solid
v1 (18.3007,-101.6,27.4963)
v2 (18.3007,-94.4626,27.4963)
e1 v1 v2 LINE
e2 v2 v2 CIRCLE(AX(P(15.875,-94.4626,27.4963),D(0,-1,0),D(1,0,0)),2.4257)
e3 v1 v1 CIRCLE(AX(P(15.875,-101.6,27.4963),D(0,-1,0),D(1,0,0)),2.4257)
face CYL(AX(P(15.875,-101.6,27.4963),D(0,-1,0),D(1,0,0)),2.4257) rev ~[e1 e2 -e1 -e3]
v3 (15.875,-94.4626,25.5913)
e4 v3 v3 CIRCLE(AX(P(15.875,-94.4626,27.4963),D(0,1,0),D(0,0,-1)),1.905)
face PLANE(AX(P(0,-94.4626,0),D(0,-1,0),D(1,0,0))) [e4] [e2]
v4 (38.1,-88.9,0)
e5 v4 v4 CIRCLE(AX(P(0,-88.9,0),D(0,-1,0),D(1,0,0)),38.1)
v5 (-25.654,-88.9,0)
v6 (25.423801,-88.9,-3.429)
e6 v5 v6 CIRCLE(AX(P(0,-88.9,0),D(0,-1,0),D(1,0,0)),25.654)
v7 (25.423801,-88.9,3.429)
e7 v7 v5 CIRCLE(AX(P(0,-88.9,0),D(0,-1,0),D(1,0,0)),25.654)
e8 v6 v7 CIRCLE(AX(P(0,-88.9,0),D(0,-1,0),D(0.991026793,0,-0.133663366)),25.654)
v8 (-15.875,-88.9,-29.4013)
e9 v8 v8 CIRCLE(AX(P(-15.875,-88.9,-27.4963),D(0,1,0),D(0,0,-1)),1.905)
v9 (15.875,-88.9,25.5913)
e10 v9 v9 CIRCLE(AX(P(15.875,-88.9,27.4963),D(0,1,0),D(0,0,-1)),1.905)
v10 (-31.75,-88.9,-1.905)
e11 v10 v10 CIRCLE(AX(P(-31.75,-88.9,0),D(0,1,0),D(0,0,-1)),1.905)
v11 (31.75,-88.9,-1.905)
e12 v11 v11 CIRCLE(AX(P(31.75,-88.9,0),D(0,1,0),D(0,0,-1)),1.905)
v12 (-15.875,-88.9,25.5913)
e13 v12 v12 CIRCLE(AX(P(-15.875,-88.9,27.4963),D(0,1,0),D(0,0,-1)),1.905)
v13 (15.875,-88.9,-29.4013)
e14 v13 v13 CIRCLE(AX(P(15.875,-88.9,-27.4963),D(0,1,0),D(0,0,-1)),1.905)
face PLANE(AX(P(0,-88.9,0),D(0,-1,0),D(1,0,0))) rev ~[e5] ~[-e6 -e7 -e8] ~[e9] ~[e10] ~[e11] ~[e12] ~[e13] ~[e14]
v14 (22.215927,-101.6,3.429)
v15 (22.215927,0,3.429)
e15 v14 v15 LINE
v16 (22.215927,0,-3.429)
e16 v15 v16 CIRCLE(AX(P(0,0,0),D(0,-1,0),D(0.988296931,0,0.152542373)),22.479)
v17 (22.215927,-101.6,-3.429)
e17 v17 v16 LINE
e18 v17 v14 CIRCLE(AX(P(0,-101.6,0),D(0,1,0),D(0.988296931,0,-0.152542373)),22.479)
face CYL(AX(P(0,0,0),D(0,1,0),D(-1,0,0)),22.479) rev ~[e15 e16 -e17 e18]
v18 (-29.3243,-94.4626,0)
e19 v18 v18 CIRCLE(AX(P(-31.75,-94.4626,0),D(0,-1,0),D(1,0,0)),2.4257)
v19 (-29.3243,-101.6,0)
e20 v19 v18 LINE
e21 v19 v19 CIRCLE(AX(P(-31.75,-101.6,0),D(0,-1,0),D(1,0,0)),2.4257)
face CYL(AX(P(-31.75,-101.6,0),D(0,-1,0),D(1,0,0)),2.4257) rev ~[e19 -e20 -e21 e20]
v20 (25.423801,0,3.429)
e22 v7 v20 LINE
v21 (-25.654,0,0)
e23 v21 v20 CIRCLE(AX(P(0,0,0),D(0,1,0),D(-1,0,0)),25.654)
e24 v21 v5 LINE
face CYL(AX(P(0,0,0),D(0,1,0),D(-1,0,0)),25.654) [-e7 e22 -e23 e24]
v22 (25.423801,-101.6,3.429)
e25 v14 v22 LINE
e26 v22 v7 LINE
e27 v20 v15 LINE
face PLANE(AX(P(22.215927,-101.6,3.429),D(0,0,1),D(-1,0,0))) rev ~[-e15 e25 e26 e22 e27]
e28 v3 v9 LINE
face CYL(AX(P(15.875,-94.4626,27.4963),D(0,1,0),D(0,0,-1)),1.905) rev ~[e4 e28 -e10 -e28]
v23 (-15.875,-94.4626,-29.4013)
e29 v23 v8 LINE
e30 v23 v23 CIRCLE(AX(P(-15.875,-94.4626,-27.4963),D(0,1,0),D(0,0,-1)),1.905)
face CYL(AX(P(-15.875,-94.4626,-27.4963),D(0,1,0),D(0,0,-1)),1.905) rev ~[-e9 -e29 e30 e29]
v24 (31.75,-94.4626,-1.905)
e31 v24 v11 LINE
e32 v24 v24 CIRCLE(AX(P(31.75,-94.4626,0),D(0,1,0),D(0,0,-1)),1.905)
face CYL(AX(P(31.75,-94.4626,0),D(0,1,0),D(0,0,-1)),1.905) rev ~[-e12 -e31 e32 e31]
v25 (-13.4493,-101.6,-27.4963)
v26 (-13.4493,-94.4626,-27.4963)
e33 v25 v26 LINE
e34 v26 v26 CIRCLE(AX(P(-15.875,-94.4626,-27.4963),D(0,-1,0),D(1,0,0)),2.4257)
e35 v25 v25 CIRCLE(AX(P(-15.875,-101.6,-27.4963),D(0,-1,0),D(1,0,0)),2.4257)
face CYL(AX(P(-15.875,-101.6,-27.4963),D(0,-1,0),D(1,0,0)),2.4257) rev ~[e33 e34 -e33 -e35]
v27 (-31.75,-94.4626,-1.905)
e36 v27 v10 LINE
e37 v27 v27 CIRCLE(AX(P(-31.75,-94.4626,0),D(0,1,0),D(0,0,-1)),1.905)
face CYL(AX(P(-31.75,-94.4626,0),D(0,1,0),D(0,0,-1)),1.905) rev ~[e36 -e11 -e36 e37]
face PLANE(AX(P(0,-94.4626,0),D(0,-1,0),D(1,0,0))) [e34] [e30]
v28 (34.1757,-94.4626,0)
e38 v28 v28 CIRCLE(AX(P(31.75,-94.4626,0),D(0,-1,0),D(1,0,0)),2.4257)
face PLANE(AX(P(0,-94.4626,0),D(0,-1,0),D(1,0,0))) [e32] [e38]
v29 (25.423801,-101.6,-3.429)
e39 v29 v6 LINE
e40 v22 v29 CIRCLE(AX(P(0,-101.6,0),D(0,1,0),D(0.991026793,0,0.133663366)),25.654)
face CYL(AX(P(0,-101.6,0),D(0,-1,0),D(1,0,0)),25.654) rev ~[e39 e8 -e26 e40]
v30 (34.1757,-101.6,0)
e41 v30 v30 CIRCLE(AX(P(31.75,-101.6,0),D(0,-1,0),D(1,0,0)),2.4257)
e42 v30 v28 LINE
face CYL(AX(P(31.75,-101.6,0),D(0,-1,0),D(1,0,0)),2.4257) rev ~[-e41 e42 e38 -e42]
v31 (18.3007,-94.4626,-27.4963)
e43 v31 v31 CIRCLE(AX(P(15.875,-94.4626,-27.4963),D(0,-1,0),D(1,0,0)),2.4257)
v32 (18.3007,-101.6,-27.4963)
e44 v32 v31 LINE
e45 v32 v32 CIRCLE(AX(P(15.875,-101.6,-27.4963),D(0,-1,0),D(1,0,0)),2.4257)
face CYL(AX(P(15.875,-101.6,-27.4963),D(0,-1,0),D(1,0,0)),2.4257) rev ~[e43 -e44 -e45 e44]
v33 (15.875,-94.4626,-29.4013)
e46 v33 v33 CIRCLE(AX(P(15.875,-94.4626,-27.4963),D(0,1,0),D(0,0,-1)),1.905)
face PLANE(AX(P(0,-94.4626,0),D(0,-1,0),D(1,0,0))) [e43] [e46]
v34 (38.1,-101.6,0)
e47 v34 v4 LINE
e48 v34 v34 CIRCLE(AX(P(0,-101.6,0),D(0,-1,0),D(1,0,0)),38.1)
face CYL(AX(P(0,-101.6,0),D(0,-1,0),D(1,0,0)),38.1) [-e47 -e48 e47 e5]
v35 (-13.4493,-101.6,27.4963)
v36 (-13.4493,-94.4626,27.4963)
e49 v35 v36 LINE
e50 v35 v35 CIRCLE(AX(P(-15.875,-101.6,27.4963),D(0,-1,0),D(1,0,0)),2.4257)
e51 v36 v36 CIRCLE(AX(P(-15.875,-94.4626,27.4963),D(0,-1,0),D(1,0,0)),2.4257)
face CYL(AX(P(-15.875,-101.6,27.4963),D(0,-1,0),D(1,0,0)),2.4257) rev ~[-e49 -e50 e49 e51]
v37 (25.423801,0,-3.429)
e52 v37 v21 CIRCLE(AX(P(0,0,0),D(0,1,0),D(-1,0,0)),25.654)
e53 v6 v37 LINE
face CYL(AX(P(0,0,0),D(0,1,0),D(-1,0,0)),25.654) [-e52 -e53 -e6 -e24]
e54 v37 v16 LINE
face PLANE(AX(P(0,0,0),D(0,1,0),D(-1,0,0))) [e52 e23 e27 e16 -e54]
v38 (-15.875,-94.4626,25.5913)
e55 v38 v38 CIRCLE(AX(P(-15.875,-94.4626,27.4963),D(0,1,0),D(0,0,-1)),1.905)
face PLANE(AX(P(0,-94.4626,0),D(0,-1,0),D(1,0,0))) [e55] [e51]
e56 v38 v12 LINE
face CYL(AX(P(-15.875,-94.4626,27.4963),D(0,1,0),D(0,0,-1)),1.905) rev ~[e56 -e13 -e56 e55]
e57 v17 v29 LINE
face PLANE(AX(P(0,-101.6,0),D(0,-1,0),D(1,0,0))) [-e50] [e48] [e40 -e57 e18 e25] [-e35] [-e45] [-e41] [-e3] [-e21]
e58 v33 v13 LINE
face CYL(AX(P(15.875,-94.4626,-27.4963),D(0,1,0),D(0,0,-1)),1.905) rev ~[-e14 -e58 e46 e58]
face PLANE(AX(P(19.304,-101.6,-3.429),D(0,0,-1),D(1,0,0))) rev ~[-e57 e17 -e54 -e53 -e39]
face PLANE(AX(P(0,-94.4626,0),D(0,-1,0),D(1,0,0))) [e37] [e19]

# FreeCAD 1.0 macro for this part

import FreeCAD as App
import Part
import Sketcher
Q = App.Units.Quantity


def add_polygon(sketch, points):
    """Adds a closed chain of lines whose ends are joined by coincident constraints."""
    first, n = sketch.GeometryCount, len(points)
    for a, b in zip(points, points[1:] + points[:1]):
        sketch.addGeometry(Part.LineSegment(App.Vector(*a, 0), App.Vector(*b, 0)), False)
    for i in range(n):
        sketch.addConstraint(Sketcher.Constraint("Coincident", first + i, 2, first + (i + 1) % n, 1))

doc = App.newDocument("Part")
body = doc.addObject("PartDesign::Body", "Body")

sketch1 = body.newObject("Sketcher::SketchObject", "Sketch")
sketch1.AttachmentSupport = (doc.getObject("XZ_Plane"), [""])
sketch1.MapMode = "FlatFace"
sketch1.addGeometry([
    Part.Circle(App.Vector(0, 0, 0), App.Vector(0, 0, 1), 25.654),
    Part.Circle(App.Vector(0, 0, 0), App.Vector(0, 0, 1), 22.479),
], False)
sketch1.addConstraint([
    Sketcher.Constraint("Coincident", 0, 3, -1, 1),
    Sketcher.Constraint("Coincident", 1, 3, -1, 1),
    Sketcher.Constraint("Diameter", 0, Q("2.02 in")),
    Sketcher.Constraint("Diameter", 1, Q("1.77 in")),
])
pad1 = body.newObject("PartDesign::Pad", "Pad")
pad1.Profile = sketch1
pad1.Length = Q("4 in")

sketch2 = body.newObject("Sketcher::SketchObject", "Sketch001")
sketch2.AttachmentSupport = (doc.getObject("XZ_Plane"), [""])
sketch2.MapMode = "FlatFace"
sketch2.AttachmentOffset = App.Placement(App.Vector(0, 0, 4 * 25.4), App.Rotation())
add_polygon(sketch2, [(19.304, 3.429), (19.304, -3.429), (25.654, -3.429), (25.654, 3.429)])
sketch2.addConstraint([
    Sketcher.Constraint("Vertical", 0),
    Sketcher.Constraint("Horizontal", 1),
    Sketcher.Constraint("Vertical", 2),
    Sketcher.Constraint("Horizontal", 3),
    Sketcher.Constraint("DistanceX", 1, 1, 1, 2, Q("0.25 in")),
    Sketcher.Constraint("DistanceY", 0, 2, 0, 1, Q("0.27 in")),
    Sketcher.Constraint("DistanceX", -1, 1, 0, 2, Q("0.76 in")),
    Sketcher.Constraint("DistanceY", 0, 2, -1, 1, Q("0.135 in")),
])
pocket1 = body.newObject("PartDesign::Pocket", "Pocket")
pocket1.Profile = sketch2
pocket1.Length = Q("4 in")

sketch3 = body.newObject("Sketcher::SketchObject", "Sketch002")
sketch3.AttachmentSupport = (doc.getObject("XZ_Plane"), [""])
sketch3.MapMode = "FlatFace"
sketch3.AttachmentOffset = App.Placement(App.Vector(0, 0, 4 * 25.4), App.Rotation())
sketch3.addGeometry([
    Part.Circle(App.Vector(0, 0, 0), App.Vector(0, 0, 1), 38.1),
    Part.Circle(App.Vector(0, 0, 0), App.Vector(0, 0, 1), 25.654),
], False)
sketch3.addConstraint([
    Sketcher.Constraint("Coincident", 0, 3, -1, 1),
    Sketcher.Constraint("Coincident", 1, 3, -1, 1),
    Sketcher.Constraint("Diameter", 0, Q("3 in")),
    Sketcher.Constraint("Diameter", 1, Q("2.02 in")),
])
pad2 = body.newObject("PartDesign::Pad", "Pad001")
pad2.Profile = sketch3
pad2.Length = Q("0.5 in")
pad2.Reversed = True

sketch4 = body.newObject("Sketcher::SketchObject", "Sketch003")
sketch4.AttachmentSupport = (doc.getObject("XZ_Plane"), [""])
sketch4.MapMode = "FlatFace"
sketch4.AttachmentOffset = App.Placement(App.Vector(0, 0, 4 * 25.4), App.Rotation())
sketch4.addGeometry([
    Part.Circle(App.Vector(31.75, 0, 0), App.Vector(0, 0, 1), 2.4257),
    Part.Circle(App.Vector(15.875, 27.4963, 0), App.Vector(0, 0, 1), 2.4257),
    Part.Circle(App.Vector(-15.875, 27.4963, 0), App.Vector(0, 0, 1), 2.4257),
    Part.Circle(App.Vector(-31.75, 0, 0), App.Vector(0, 0, 1), 2.4257),
    Part.Circle(App.Vector(-15.875, -27.4963, 0), App.Vector(0, 0, 1), 2.4257),
    Part.Circle(App.Vector(15.875, -27.4963, 0), App.Vector(0, 0, 1), 2.4257),
], False)
sketch4.addConstraint([
    Sketcher.Constraint("Equal", 0, 1),
    Sketcher.Constraint("Equal", 1, 2),
    Sketcher.Constraint("Equal", 2, 3),
    Sketcher.Constraint("Equal", 3, 4),
    Sketcher.Constraint("Equal", 4, 5),
    Sketcher.Constraint("Symmetric", 0, 3, 3, 3, -1, 1),
    Sketcher.Constraint("Symmetric", 1, 3, 4, 3, -1, 1),
    Sketcher.Constraint("Symmetric", 2, 3, 5, 3, -1, 1),
    Sketcher.Constraint("Symmetric", 1, 3, 2, 3, -2),
    Sketcher.Constraint("PointOnObject", 0, 3, -1),
    Sketcher.Constraint("Diameter", 0, Q("0.191 in")),
    Sketcher.Constraint("DistanceX", 3, 3, 0, 3, Q("2.5 in")),
    Sketcher.Constraint("DistanceX", 2, 3, 1, 3, Q("1.25 in")),
    Sketcher.Constraint("DistanceY", -1, 1, 1, 3, 27.4963),
])
pocket2 = body.newObject("PartDesign::Pocket", "Pocket001")
pocket2.Profile = sketch4
pocket2.Length = Q("0.281 in")

sketch5 = body.newObject("Sketcher::SketchObject", "Sketch004")
sketch5.AttachmentSupport = (doc.getObject("XZ_Plane"), [""])
sketch5.MapMode = "FlatFace"
sketch5.AttachmentOffset = App.Placement(App.Vector(0, 0, 3.719 * 25.4), App.Rotation())
sketch5.addGeometry([
    Part.Circle(App.Vector(31.75, 0, 0), App.Vector(0, 0, 1), 1.905),
    Part.Circle(App.Vector(15.875, 27.4963, 0), App.Vector(0, 0, 1), 1.905),
    Part.Circle(App.Vector(-15.875, 27.4963, 0), App.Vector(0, 0, 1), 1.905),
    Part.Circle(App.Vector(-31.75, 0, 0), App.Vector(0, 0, 1), 1.905),
    Part.Circle(App.Vector(-15.875, -27.4963, 0), App.Vector(0, 0, 1), 1.905),
    Part.Circle(App.Vector(15.875, -27.4963, 0), App.Vector(0, 0, 1), 1.905),
], False)
sketch5.addConstraint([
    Sketcher.Constraint("Equal", 0, 1),
    Sketcher.Constraint("Equal", 1, 2),
    Sketcher.Constraint("Equal", 2, 3),
    Sketcher.Constraint("Equal", 3, 4),
    Sketcher.Constraint("Equal", 4, 5),
    Sketcher.Constraint("Symmetric", 0, 3, 3, 3, -1, 1),
    Sketcher.Constraint("Symmetric", 1, 3, 4, 3, -1, 1),
    Sketcher.Constraint("Symmetric", 2, 3, 5, 3, -1, 1),
    Sketcher.Constraint("Symmetric", 1, 3, 2, 3, -2),
    Sketcher.Constraint("PointOnObject", 0, 3, -1),
    Sketcher.Constraint("Diameter", 0, Q("0.15 in")),
    Sketcher.Constraint("DistanceX", 3, 3, 0, 3, Q("2.5 in")),
    Sketcher.Constraint("DistanceX", 2, 3, 1, 3, Q("1.25 in")),
    Sketcher.Constraint("DistanceY", -1, 1, 1, 3, 27.4963),
])
doc.recompute()
hole = body.newObject("PartDesign::Hole", "Hole")
hole.Profile = sketch5
hole.ThreadType = "None"
hole.Diameter = Q("0.15 in")
hole.DepthType = "ThroughAll"

doc.recompute()
